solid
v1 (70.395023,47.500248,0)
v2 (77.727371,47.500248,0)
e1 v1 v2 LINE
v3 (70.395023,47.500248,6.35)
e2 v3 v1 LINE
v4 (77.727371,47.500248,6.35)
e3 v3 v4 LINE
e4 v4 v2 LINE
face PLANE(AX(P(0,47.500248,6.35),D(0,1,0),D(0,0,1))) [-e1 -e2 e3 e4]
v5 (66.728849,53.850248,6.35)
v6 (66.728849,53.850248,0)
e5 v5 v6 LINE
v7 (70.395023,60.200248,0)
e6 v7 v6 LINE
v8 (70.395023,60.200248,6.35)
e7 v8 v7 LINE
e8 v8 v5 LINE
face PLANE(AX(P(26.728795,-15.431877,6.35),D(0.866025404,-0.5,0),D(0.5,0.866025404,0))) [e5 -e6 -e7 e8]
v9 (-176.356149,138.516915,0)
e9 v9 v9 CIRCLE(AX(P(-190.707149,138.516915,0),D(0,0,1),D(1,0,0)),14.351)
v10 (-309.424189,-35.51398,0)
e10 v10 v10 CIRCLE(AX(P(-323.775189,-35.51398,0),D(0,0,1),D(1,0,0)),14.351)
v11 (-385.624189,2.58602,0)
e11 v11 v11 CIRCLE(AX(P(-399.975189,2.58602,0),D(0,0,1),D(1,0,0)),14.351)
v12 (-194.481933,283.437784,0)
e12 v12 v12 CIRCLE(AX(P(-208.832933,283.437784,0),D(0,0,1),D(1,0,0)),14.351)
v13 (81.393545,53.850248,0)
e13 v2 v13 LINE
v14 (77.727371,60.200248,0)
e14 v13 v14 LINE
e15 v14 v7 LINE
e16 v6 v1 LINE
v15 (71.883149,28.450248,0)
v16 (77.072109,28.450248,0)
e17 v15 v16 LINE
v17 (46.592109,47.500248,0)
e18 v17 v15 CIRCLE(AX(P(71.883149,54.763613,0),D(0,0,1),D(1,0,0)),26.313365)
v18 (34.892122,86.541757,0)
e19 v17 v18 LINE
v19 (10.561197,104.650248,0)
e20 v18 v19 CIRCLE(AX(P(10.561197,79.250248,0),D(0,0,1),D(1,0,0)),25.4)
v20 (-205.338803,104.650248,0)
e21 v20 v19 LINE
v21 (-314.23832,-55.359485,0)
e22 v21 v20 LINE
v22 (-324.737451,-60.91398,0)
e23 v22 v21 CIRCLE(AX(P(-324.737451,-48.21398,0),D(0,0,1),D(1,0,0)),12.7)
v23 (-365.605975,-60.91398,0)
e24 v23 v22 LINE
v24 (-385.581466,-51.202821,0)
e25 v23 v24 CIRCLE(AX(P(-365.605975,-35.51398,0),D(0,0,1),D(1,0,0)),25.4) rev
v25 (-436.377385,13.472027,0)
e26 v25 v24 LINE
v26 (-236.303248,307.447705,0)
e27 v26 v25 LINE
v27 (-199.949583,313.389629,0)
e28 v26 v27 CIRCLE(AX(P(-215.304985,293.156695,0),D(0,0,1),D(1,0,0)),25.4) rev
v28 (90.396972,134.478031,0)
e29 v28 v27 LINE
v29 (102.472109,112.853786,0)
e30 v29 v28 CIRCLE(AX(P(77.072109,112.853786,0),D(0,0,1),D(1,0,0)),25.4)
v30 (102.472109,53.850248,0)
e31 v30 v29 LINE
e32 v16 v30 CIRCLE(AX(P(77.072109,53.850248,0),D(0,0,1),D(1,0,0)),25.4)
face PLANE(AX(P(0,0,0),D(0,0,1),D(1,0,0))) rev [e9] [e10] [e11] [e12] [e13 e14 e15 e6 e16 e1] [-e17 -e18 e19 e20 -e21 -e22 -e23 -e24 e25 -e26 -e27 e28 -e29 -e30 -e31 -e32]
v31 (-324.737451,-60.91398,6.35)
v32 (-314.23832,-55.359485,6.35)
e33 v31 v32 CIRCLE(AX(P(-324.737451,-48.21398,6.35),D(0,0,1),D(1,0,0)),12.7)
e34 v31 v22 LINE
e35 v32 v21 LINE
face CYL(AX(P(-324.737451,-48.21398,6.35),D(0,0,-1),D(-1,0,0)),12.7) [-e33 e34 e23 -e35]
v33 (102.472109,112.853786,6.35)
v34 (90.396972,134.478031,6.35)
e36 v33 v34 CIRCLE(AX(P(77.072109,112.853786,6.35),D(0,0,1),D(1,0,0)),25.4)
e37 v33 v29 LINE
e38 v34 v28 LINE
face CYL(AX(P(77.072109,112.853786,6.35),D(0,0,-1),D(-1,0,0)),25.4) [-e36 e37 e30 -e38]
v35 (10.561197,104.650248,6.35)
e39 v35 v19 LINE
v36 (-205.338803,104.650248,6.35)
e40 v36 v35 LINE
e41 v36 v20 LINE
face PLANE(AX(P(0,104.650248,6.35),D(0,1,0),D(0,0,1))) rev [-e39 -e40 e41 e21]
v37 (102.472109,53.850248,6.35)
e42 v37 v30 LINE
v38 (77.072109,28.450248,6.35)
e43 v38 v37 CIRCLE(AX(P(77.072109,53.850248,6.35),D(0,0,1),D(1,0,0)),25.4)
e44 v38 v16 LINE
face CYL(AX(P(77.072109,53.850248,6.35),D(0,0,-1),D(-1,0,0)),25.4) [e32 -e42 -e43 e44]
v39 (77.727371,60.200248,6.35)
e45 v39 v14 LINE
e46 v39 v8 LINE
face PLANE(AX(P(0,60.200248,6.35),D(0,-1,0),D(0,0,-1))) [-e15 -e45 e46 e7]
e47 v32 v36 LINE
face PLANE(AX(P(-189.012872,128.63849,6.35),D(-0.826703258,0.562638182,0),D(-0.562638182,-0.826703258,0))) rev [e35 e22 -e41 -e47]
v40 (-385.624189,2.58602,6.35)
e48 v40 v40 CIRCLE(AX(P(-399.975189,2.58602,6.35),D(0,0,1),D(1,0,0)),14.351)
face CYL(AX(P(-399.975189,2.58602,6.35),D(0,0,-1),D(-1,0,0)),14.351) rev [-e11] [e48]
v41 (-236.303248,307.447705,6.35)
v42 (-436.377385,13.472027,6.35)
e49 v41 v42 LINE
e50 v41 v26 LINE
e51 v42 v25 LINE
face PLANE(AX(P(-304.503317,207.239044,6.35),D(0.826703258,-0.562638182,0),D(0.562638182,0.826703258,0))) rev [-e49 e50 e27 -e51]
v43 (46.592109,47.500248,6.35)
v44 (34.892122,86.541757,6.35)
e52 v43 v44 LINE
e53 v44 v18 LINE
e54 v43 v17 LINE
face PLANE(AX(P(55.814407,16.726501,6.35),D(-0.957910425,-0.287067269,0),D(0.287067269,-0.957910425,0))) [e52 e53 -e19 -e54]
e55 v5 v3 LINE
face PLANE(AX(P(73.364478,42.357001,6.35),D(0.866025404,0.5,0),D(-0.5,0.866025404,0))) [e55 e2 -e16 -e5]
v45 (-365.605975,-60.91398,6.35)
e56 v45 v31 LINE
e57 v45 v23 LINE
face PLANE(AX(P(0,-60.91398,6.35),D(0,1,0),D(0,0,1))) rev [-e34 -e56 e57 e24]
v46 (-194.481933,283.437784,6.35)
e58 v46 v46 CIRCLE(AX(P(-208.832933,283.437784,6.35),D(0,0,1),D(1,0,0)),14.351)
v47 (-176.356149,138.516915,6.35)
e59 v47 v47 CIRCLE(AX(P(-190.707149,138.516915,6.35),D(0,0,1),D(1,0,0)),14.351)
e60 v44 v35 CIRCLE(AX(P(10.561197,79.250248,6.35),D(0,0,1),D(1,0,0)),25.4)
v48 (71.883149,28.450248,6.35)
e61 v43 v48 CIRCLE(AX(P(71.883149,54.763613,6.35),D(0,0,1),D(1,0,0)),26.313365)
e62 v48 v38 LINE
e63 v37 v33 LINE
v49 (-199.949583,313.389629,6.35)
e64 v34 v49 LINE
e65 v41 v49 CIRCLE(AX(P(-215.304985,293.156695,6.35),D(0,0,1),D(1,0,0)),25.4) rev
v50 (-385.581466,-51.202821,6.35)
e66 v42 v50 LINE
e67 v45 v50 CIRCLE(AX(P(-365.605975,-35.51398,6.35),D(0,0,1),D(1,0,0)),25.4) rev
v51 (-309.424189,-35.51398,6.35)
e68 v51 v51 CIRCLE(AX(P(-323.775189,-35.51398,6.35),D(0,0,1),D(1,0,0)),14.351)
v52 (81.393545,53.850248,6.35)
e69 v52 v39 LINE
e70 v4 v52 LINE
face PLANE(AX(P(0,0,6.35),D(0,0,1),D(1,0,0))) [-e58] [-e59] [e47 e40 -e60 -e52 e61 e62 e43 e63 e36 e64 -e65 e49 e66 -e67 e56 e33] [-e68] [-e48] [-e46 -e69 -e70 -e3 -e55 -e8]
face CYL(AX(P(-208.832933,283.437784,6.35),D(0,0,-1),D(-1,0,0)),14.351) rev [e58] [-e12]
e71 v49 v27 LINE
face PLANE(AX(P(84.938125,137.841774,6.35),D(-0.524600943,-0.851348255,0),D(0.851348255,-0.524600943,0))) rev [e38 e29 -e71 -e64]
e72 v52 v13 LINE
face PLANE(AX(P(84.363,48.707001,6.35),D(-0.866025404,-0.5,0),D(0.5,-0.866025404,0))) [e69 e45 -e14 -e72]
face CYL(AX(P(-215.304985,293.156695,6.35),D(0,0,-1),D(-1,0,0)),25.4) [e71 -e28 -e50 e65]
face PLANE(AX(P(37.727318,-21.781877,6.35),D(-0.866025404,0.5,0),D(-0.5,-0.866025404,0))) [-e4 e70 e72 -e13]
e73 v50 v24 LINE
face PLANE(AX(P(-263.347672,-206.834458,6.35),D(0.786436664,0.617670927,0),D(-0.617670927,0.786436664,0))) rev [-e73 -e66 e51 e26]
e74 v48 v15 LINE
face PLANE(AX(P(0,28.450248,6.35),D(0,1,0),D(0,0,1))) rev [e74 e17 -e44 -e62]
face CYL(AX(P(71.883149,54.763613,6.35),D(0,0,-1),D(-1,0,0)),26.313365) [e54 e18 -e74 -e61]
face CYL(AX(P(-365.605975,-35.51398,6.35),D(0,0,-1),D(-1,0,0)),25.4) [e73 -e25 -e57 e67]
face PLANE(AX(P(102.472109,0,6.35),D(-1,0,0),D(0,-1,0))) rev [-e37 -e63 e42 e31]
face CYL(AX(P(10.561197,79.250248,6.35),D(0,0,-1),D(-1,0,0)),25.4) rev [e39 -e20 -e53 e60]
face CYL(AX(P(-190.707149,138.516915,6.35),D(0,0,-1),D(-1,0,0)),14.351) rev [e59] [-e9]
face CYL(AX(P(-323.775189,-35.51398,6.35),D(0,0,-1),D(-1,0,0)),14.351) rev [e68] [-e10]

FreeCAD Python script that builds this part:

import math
import FreeCAD as App
import Part
import Sketcher
from FreeCAD import Vector
Q = App.Units.Quantity

doc = App.newDocument("Part")
params = doc.addObject("Spreadsheet::Sheet", "Params")
for row, (alias, value) in enumerate([
    ("sketch1_radius", "1 in"),
    ("sketch1_radius2", "0.5 in"),
    ("sketch1_diameter", "1.13 in"),
    ("sketch1_length", "14 in"),
    ("sketch1_width", "8.5 in"),
    ("pad1_length", "0.25 in"),
], start=1):
    params.set(f"A{row}", alias)
    params.set(f"B{row}", "=" + value)
    params.setAlias(f"B{row}", alias)

body = doc.addObject("PartDesign::Body", "Body")

sketch1 = body.newObject("Sketcher::SketchObject", "Sketch")
sketch1.AttachmentSupport = (doc.getObject("XY_Plane"), [""])
sketch1.MapMode = "FlatFace"
sketch1.addGeometry([
    Part.LineSegment(Vector(-314, -55, 0), Vector(-205, 105, 0)),
    Part.LineSegment(Vector(-205, 105, 0), Vector(11, 105, 0)),
    Part.ArcOfCircle(Part.Circle(Vector(11, 79, 0), Vector(0, 0, 1), 25), math.radians(17), math.radians(90)),
    Part.LineSegment(Vector(35, 87, 0), Vector(47, 48, 0)),
    Part.ArcOfCircle(Part.Circle(Vector(72, 55, 0), Vector(0, 0, 1), 26), math.radians(-164), math.radians(-90)),
    Part.LineSegment(Vector(72, 28, 0), Vector(77, 28, 0)),
    Part.ArcOfCircle(Part.Circle(Vector(77, 54, 0), Vector(0, 0, 1), 25), math.radians(-90), math.radians(0)),
    Part.LineSegment(Vector(102, 54, 0), Vector(102, 113, 0)),
    Part.ArcOfCircle(Part.Circle(Vector(77, 113, 0), Vector(0, 0, 1), 25), math.radians(0), math.radians(58)),
    Part.LineSegment(Vector(90, 134, 0), Vector(-200, 313, 0)),
    Part.ArcOfCircle(Part.Circle(Vector(-215, 293, 0), Vector(0, 0, 1), 25), math.radians(53), math.radians(146)),
    Part.LineSegment(Vector(-236, 307, 0), Vector(-436, 13, 0)),
    Part.LineSegment(Vector(-436, 13, 0), Vector(-386, -51, 0)),
    Part.ArcOfCircle(Part.Circle(Vector(-366, -36, 0), Vector(0, 0, 1), 25), math.radians(-142), math.radians(-90)),
    Part.LineSegment(Vector(-366, -61, 0), Vector(-325, -61, 0)),
    Part.ArcOfCircle(Part.Circle(Vector(-325, -48, 0), Vector(0, 0, 1), 13), math.radians(-90), math.radians(-34)),
    Part.Circle(Vector(-324, -36, 0), Vector(0, 0, 1), 14),
    Part.Circle(Vector(-400, 3, 0), Vector(0, 0, 1), 14),
    Part.LineSegment(Vector(70, 60, 0), Vector(78, 60, 0)),
    Part.LineSegment(Vector(78, 60, 0), Vector(81, 54, 0)),
    Part.LineSegment(Vector(81, 54, 0), Vector(78, 48, 0)),
    Part.LineSegment(Vector(78, 48, 0), Vector(70, 48, 0)),
    Part.LineSegment(Vector(70, 48, 0), Vector(67, 54, 0)),
    Part.LineSegment(Vector(67, 54, 0), Vector(70, 60, 0)),
    Part.Circle(Vector(-191, 139, 0), Vector(0, 0, 1), 14),
    Part.Circle(Vector(-209, 283, 0), Vector(0, 0, 1), 14),
], False)
sketch1.addConstraint([
    Sketcher.Constraint("Coincident", 0, 2, 1, 1),
    Sketcher.Constraint("Tangent", 1, 2, 2, 2),
    Sketcher.Constraint("Tangent", 2, 1, 3, 1),
    Sketcher.Constraint("Coincident", 3, 2, 4, 1),
    Sketcher.Constraint("Tangent", 4, 2, 5, 1),
    Sketcher.Constraint("Tangent", 5, 2, 6, 1),
    Sketcher.Constraint("Tangent", 6, 2, 7, 1),
    Sketcher.Constraint("Tangent", 7, 2, 8, 1),
    Sketcher.Constraint("Tangent", 8, 2, 9, 1),
    Sketcher.Constraint("Coincident", 9, 2, 10, 1),
    Sketcher.Constraint("Tangent", 10, 2, 11, 1),
    Sketcher.Constraint("Coincident", 11, 2, 12, 1),
    Sketcher.Constraint("Tangent", 12, 2, 13, 1),
    Sketcher.Constraint("Tangent", 13, 2, 14, 1),
    Sketcher.Constraint("Tangent", 14, 2, 15, 1),
    Sketcher.Constraint("Tangent", 15, 2, 0, 1),
    Sketcher.Constraint("Coincident", 18, 2, 19, 1),
    Sketcher.Constraint("Coincident", 19, 2, 20, 1),
    Sketcher.Constraint("Coincident", 20, 2, 21, 1),
    Sketcher.Constraint("Coincident", 21, 2, 22, 1),
    Sketcher.Constraint("Coincident", 22, 2, 23, 1),
    Sketcher.Constraint("Coincident", 23, 2, 18, 1),
    Sketcher.Constraint("Horizontal", 1),
    Sketcher.Constraint("Horizontal", 5),
    Sketcher.Constraint("Vertical", 7),
    Sketcher.Constraint("Horizontal", 14),
    Sketcher.Constraint("Horizontal", 18),
    Sketcher.Constraint("Horizontal", 21),
    Sketcher.Constraint("Equal", 2, 6),
    Sketcher.Constraint("Equal", 6, 8),
    Sketcher.Constraint("Equal", 8, 10),
    Sketcher.Constraint("Equal", 10, 13),
    Sketcher.Constraint("Equal", 16, 17),
    Sketcher.Constraint("Equal", 17, 24),
    Sketcher.Constraint("Equal", 24, 25),
    Sketcher.Constraint("Parallel", 0, 11),
    Sketcher.Constraint("Parallel", 19, 22),
    Sketcher.Constraint("Parallel", 20, 23),
    Sketcher.Constraint("Horizontal", 13, 3, 16, 3),
    Sketcher.Constraint("Horizontal", 6, 2, 19, 2),
    Sketcher.Constraint("Horizontal", 3, 2, 20, 2),
    Sketcher.Constraint("Horizontal", 19, 2, 22, 2),
    Sketcher.Constraint("Vertical", 18, 2, 20, 2),
    Sketcher.Constraint("Vertical", 21, 2, 23, 2),
    Sketcher.Constraint("Radius", 2, Q("1 in")),
    Sketcher.Constraint("Radius", 15, Q("0.5 in")),
    Sketcher.Constraint("Diameter", 16, Q("1.13 in")),
    Sketcher.Constraint("Distance", 11, Q("14 in")),
    Sketcher.Constraint("DistanceX", 1, 1, 1, 2, Q("8.5 in")),
    Sketcher.Constraint("Angle", 19, Q("-60 deg")),
    Sketcher.Constraint("DistanceY", 6, 3, 2, 3, Q("1 in")),
    Sketcher.Constraint("DistanceX", 17, 3, 16, 3, Q("3 in")),
    Sketcher.Constraint("DistanceY", 15, 3, 17, 3, Q("2 in")),
    Sketcher.Constraint("DistanceX", 3, 2, 6, 3, Q("1.2 in")),
    Sketcher.Constraint("DistanceY", 20, 2, 18, 2, Q("0.5 in")),
    Sketcher.Constraint("Radius", 4, 26.313365),
    Sketcher.Constraint("DistanceX", 16, 3, 4, 3, Q("15.5770999 in")),
    Sketcher.Constraint("DistanceX", 18, 1, 18, 2, 7.332348),
    Sketcher.Constraint("DistanceX", 15, 3, 4, 3, 396.6206),
    Sketcher.Constraint("DistanceY", 8, 3, 25, 3, 170.583999),
    Sketcher.Constraint("DistanceX", 10, 2, 24, 3, 45.596099),
    Sketcher.Constraint("DistanceX", 22, 2, 4, 3, 5.1543),
    Sketcher.Constraint("Distance", 3, 40.756951),
    Sketcher.Constraint("DistanceX", 14, 1, 14, 2, 40.868524),
    Sketcher.Constraint("DistanceY", 7, 1, 7, 2, 59.003538),
    Sketcher.Constraint("DistanceY", -1, 1, 2, 3, 79.250248),
    Sketcher.Constraint("DistanceX", -1, 1, 4, 3, 71.883149),
    Sketcher.Constraint("DistanceY", 13, 3, -1, 1, 35.51398),
    Sketcher.Constraint("DistanceX", 24, 3, -1, 1, 190.707149),
    Sketcher.Constraint("DistanceY", -1, 1, 9, 2, 313.389629),
    Sketcher.Constraint("DistanceY", 12, 2, -1, 1, 51.202821),
    Sketcher.Constraint("DistanceY", 24, 3, 10, 3, 154.639781),
    Sketcher.Constraint("DistanceX", 25, 3, 2, 3, 219.39413),
])
sketch1.setExpression("Constraints[44]", "Params.sketch1_radius")
sketch1.setExpression("Constraints[45]", "Params.sketch1_radius2")
sketch1.setExpression("Constraints[46]", "Params.sketch1_diameter")
sketch1.setExpression("Constraints[47]", "Params.sketch1_length")
sketch1.setExpression("Constraints[48]", "Params.sketch1_width")
pad1 = body.newObject("PartDesign::Pad", "Pad")
pad1.Profile = sketch1
pad1.setExpression("Length", "Params.pad1_length")

doc.recompute()
